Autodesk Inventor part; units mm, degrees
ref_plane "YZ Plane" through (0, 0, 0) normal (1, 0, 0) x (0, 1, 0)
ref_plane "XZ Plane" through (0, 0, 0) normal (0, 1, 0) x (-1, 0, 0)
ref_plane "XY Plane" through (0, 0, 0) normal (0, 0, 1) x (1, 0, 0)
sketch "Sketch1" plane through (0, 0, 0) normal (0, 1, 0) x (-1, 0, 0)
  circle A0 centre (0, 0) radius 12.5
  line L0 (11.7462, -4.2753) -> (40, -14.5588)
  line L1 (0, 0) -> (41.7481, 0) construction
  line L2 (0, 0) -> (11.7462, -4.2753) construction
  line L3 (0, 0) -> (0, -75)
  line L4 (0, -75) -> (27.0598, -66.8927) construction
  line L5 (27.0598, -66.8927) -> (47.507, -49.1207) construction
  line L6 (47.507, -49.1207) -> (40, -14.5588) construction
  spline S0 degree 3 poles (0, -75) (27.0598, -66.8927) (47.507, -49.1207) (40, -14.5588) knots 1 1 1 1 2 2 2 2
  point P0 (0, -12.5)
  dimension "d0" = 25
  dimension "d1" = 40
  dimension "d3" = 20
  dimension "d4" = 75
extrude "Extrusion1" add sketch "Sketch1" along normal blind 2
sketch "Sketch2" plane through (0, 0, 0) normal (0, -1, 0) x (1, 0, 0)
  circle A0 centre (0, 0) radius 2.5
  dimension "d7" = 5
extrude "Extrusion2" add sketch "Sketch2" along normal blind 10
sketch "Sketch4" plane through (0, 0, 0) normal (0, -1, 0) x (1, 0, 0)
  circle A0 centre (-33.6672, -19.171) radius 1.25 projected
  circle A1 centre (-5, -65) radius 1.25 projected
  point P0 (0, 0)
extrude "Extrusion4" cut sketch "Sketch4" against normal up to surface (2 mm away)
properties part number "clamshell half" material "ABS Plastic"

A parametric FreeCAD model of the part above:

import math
import FreeCAD as App
import Part
import Sketcher
Q = App.Units.Quantity

doc = App.newDocument("Part")
body = doc.addObject("PartDesign::Body", "Body")

sketch1 = doc.addObject("Sketcher::SketchObject", "Sketch")
body.addObject(sketch1)
sketch1.AttachmentSupport = (doc.XZ_Plane, [""])
sketch1.MapMode = "FlatFace"
sketch1.addGeometry([
    Part.LineSegment(App.Vector(0, -12.5, 0), App.Vector(0, -75, 0)),
    Part.BSplineCurve([App.Vector(0, -75, 0), App.Vector(-27.0598, -66.8927, 0), App.Vector(-47.507, -49.1207, 0), App.Vector(-40, -14.5588, 0)], [4, 4], [1, 2], False, 3, [1, 1, 1, 1], False),
    Part.LineSegment(App.Vector(-40, -14.5588, 0), App.Vector(-11.7462, -4.2753, 0)),
    Part.ArcOfCircle(Part.Circle(App.Vector(0, 0, 0), App.Vector(0, 0, 1), 12.5), math.radians(-90), math.radians(200.000141)),
], False)
sketch1.addConstraint([
    Sketcher.Constraint("Block", 1),
    Sketcher.Constraint("Coincident", 0, 2, 1, 1),
    Sketcher.Constraint("Coincident", 1, 2, 2, 1),
    Sketcher.Constraint("Coincident", 2, 2, 3, 2),
    Sketcher.Constraint("Coincident", 3, 1, 0, 1),
    Sketcher.Constraint("Vertical", 0),
    Sketcher.Constraint("Coincident", 3, 3, -1, 1),
    Sketcher.Constraint("Radius", 3, Q("12.5 mm")),
    Sketcher.Constraint("DistanceX", 2, 2, -1, 1, Q("11.7462 mm")),
])
pad1 = doc.addObject("PartDesign::Pad", "Pad")
body.addObject(pad1)
pad1.Profile = sketch1
pad1.Length = 2
pad1.Reversed = True

sketch2 = doc.addObject("Sketcher::SketchObject", "Sketch001")
body.addObject(sketch2)
sketch2.AttachmentSupport = (doc.XZ_Plane, [""])
sketch2.MapMode = "FlatFace"
sketch2.addGeometry(Part.Circle(App.Vector(0, 0, 0), App.Vector(0, 0, 1), 2.5), False)
sketch2.addConstraint([
    Sketcher.Constraint("Coincident", 0, 3, -1, 1),
    Sketcher.Constraint("Diameter", 0, Q("5 mm")),
])
pad2 = doc.addObject("PartDesign::Pad", "Pad001")
body.addObject(pad2)
pad2.Profile = sketch2
pad2.Length = 10

sketch3 = doc.addObject("Sketcher::SketchObject", "Sketch002")
body.addObject(sketch3)
sketch3.AttachmentSupport = (doc.XZ_Plane, [""])
sketch3.MapMode = "FlatFace"
sketch3.addGeometry([
    Part.Circle(App.Vector(-33.7, -19.2, 0), App.Vector(0, 0, 1), 1.2),
    Part.Circle(App.Vector(-5, -65, 0), App.Vector(0, 0, 1), 1.2),
], False)
sketch3.addConstraint([
    Sketcher.Constraint("Equal", 0, 1),
    Sketcher.Constraint("Diameter", 0, Q("2.5 mm")),
    Sketcher.Constraint("DistanceX", 1, 3, -1, 1, Q("5 mm")),
    Sketcher.Constraint("DistanceY", 1, 3, -1, 1, Q("65 mm")),
    Sketcher.Constraint("DistanceY", 0, 3, -1, 1, Q("19.171 mm")),
    Sketcher.Constraint("DistanceX", 0, 3, -1, 1, Q("33.6672 mm")),
])
pocket1 = doc.addObject("PartDesign::Pocket", "Pocket")
body.addObject(pocket1)
pocket1.Profile = sketch3
pocket1.Length = 2

doc.recompute()
